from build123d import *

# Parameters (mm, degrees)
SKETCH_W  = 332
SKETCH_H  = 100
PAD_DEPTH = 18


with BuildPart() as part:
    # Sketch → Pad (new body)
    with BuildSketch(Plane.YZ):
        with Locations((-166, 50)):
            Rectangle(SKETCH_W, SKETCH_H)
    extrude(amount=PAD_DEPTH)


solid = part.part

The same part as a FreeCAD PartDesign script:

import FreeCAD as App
import Part
import Sketcher
from FreeCAD import Vector
Q = App.Units.Quantity

doc = App.newDocument("Part")
params = doc.addObject("Spreadsheet::Sheet", "Params")
for row, (alias, value) in enumerate([
    ("sketch1_width", "332 mm"),
    ("sketch1_height", "100 mm"),
    ("pad1_length", "18 mm"),
], start=1):
    params.set(f"A{row}", alias)
    params.set(f"B{row}", "=" + value)
    params.setAlias(f"B{row}", alias)

body = doc.addObject("PartDesign::Body", "Body")

# Sketch on YZ plane
sketch1 = body.newObject("Sketcher::SketchObject", "Sketch")
sketch1.AttachmentSupport = (doc.getObject("YZ_Plane"), [""])
sketch1.MapMode = "FlatFace"
sketch1.addGeometry([
    Part.LineSegment(Vector(-332, 100, 0), Vector(-332, 0, 0)),
    Part.LineSegment(Vector(-332, 0, 0), Vector(0, 0, 0)),
    Part.LineSegment(Vector(0, 0, 0), Vector(0, 100, 0)),
    Part.LineSegment(Vector(0, 100, 0), Vector(-332, 100, 0)),
], False)
sketch1.addConstraint([
    Sketcher.Constraint("Coincident", 0, 2, 1, 1),
    Sketcher.Constraint("Coincident", 1, 2, 2, 1),
    Sketcher.Constraint("Coincident", 2, 2, 3, 1),
    Sketcher.Constraint("Coincident", 3, 2, 0, 1),
    Sketcher.Constraint("Vertical", 0),
    Sketcher.Constraint("Horizontal", 1),
    Sketcher.Constraint("Vertical", 2),
    Sketcher.Constraint("Horizontal", 3),
    Sketcher.Constraint("Coincident", 1, 2, -1, 1),
    Sketcher.Constraint("DistanceX", 1, 1, 1, 2, Q("332 mm")),
    Sketcher.Constraint("DistanceY", 0, 2, 0, 1, Q("100 mm")),
])
sketch1.setExpression("Constraints[9]", "Params.sketch1_width")
sketch1.setExpression("Constraints[10]", "Params.sketch1_height")
pad1 = body.newObject("PartDesign::Pad", "Pad")
pad1.Profile = sketch1
pad1.setExpression("Length", "Params.pad1_length")

doc.recompute()
